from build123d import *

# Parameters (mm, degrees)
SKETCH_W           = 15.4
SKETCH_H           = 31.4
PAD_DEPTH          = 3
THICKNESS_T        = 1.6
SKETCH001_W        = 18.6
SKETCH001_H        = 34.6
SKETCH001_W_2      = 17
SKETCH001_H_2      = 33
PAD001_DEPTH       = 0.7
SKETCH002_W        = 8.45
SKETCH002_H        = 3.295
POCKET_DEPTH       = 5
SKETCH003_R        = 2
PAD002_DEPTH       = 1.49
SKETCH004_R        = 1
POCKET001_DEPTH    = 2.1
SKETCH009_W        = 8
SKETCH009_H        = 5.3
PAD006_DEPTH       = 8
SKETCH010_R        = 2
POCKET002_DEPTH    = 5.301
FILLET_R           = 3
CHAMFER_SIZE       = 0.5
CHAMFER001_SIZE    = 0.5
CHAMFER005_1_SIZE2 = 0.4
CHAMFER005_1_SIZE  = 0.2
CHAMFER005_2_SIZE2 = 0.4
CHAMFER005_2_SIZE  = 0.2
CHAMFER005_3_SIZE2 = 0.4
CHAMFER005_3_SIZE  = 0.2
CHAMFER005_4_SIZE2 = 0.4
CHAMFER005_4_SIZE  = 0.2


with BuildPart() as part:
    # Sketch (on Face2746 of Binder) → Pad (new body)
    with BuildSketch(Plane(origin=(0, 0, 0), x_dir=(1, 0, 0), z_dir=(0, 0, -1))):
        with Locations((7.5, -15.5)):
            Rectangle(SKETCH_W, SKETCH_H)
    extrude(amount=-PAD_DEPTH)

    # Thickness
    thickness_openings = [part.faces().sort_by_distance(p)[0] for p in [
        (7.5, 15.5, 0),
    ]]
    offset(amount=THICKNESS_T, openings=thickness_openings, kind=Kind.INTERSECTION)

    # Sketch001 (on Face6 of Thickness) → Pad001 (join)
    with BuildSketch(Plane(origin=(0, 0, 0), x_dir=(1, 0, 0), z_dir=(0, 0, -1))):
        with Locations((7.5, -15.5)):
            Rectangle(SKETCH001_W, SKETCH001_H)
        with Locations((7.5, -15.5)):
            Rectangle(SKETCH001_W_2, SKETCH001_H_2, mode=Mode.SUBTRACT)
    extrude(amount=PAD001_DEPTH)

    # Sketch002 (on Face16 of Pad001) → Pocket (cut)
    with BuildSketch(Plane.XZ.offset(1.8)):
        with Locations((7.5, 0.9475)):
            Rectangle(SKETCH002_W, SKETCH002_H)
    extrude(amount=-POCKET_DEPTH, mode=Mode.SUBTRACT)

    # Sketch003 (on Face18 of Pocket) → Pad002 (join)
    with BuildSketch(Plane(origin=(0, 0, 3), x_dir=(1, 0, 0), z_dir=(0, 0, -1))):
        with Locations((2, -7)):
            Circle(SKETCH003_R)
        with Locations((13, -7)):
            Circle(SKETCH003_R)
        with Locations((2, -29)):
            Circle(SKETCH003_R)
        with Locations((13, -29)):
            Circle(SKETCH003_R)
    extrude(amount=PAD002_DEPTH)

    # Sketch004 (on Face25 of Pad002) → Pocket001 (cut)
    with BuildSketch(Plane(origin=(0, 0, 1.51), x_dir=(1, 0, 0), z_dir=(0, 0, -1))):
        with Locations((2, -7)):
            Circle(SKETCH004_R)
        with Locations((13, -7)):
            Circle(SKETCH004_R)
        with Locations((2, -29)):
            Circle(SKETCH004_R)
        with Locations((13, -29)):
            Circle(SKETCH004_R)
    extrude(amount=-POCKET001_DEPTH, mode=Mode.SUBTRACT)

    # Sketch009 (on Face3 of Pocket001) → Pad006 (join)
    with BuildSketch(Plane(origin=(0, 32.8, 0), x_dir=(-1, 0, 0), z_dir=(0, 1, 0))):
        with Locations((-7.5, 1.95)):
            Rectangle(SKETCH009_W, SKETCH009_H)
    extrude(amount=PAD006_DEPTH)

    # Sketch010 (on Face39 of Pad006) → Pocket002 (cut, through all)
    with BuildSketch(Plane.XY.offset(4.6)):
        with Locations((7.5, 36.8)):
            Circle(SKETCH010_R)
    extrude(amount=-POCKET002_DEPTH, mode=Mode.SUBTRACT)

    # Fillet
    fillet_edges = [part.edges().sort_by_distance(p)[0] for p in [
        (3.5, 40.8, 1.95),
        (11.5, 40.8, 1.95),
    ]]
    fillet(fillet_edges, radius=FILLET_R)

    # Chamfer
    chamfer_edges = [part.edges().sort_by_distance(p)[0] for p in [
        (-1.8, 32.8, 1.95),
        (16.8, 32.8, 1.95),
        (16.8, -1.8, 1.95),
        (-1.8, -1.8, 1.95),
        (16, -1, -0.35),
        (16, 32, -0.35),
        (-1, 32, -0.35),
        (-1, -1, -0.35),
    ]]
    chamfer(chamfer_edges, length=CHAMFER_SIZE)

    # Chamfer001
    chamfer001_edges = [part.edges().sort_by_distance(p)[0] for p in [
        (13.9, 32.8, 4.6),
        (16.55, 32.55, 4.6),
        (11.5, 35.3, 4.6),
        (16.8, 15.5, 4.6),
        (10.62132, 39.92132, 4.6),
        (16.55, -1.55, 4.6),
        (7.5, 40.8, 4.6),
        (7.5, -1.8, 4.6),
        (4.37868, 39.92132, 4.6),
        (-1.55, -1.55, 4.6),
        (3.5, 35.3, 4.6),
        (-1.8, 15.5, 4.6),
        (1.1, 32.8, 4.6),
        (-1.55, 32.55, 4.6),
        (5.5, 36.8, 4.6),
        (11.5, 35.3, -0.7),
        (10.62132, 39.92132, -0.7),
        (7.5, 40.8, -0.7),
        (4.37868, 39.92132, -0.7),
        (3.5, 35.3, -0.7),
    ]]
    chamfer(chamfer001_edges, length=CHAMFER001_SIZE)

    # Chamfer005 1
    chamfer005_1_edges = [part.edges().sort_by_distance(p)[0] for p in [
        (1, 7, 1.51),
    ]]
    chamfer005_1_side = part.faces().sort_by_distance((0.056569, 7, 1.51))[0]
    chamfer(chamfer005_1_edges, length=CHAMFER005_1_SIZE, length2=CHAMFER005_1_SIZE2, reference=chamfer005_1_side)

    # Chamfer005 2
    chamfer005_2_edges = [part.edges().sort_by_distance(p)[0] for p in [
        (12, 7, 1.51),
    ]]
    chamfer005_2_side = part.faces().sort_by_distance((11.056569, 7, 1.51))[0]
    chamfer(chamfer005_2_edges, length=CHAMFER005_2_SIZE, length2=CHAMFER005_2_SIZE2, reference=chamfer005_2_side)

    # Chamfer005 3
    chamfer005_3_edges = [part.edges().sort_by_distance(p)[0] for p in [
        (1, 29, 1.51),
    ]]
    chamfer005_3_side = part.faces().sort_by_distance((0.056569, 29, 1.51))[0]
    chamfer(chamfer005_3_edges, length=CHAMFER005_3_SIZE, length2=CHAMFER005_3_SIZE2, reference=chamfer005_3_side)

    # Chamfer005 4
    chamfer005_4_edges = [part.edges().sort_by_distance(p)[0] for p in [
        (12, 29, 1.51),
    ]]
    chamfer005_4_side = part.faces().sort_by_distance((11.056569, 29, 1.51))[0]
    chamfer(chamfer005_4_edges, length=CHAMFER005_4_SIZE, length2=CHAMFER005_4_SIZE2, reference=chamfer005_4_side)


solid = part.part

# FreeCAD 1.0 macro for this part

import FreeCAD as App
import Part
import Sketcher
from FreeCAD import Vector


def edges_at(feature, points):
    """Names of the edges that pass closest to the given points."""
    edges = feature.Shape.Edges
    near = lambda p: min(range(len(edges)), key=lambda i: edges[i].distToShape(Part.Vertex(*p))[0])
    return sorted({f"Edge{near(p) + 1}" for p in points})


def faces_at(feature, points):
    """Names of the faces that lie closest to the given points."""
    faces = feature.Shape.Faces
    near = lambda p: min(range(len(faces)), key=lambda i: faces[i].distToShape(Part.Vertex(*p))[0])
    return sorted({f"Face{near(p) + 1}" for p in points})

doc = App.newDocument("Part")
body = doc.addObject("PartDesign::Body", "Body")

sketch1 = body.newObject("Sketcher::SketchObject", "Sketch")
sketch1.AttachmentSupport = (doc.getObject("XY_Plane"), [""])
sketch1.MapMode = "FlatFace"
sketch1.addGeometry([
    Part.LineSegment(Vector(0, 0, 0), Vector(0, 31, 0)),
    Part.LineSegment(Vector(0, 31, 0), Vector(15, 31, 0)),
    Part.LineSegment(Vector(15, 31, 0), Vector(15, 0, 0)),
    Part.LineSegment(Vector(15, 0, 0), Vector(0, 0, 0)),
], False)
sketch1.addConstraint([
    Sketcher.Constraint("Coincident", 0, 2, 1, 1),
    Sketcher.Constraint("Coincident", 1, 2, 2, 1),
    Sketcher.Constraint("Coincident", 2, 2, 3, 1),
    Sketcher.Constraint("Coincident", 3, 2, 0, 1),
    Sketcher.Constraint("Vertical", 0),
    Sketcher.Constraint("Horizontal", 1),
    Sketcher.Constraint("Vertical", 2),
    Sketcher.Constraint("Horizontal", 3),
    Sketcher.Constraint("DistanceX", 1, 1, 1, 2, 15.4),
    Sketcher.Constraint("DistanceY", 0, 1, 0, 2, 31.4),
    Sketcher.Constraint("DistanceX", 0, 2, -1, 1, 0.2),
    Sketcher.Constraint("DistanceY", -1, 1, 0, 2, 31.2),
])
pad1 = body.newObject("PartDesign::Pad", "Pad")
pad1.Profile = sketch1
pad1.Length = 3
doc.recompute()

thickness = body.newObject("PartDesign::Thickness", "Thickness")
thickness.Base = (pad1, faces_at(pad1, [(7.5, 15.5, 0)]))
thickness.Value = 1.6
thickness.Reversed = False
thickness.Join = "Intersection"

sketch2 = body.newObject("Sketcher::SketchObject", "Sketch001")
sketch2.AttachmentSupport = (doc.getObject("XY_Plane"), [""])
sketch2.MapMode = "FlatFace"
sketch2.addGeometry([
    Part.LineSegment(Vector(-2, -2, 0), Vector(-2, 33, 0)),
    Part.LineSegment(Vector(-2, 33, 0), Vector(17, 33, 0)),
    Part.LineSegment(Vector(17, 33, 0), Vector(17, -2, 0)),
    Part.LineSegment(Vector(17, -2, 0), Vector(-2, -2, 0)),
    Part.LineSegment(Vector(16, 32, 0), Vector(-1, 32, 0)),
    Part.LineSegment(Vector(-1, 32, 0), Vector(-1, -1, 0)),
    Part.LineSegment(Vector(-1, -1, 0), Vector(16, -1, 0)),
    Part.LineSegment(Vector(16, -1, 0), Vector(16, 32, 0)),
], False)
sketch2.addConstraint([
    Sketcher.Constraint("Coincident", 0, 2, 1, 1),
    Sketcher.Constraint("Coincident", 1, 2, 2, 1),
    Sketcher.Constraint("Coincident", 2, 2, 3, 1),
    Sketcher.Constraint("Coincident", 3, 2, 0, 1),
    Sketcher.Constraint("Coincident", 4, 2, 5, 1),
    Sketcher.Constraint("Coincident", 5, 2, 6, 1),
    Sketcher.Constraint("Coincident", 6, 2, 7, 1),
    Sketcher.Constraint("Coincident", 7, 2, 4, 1),
    Sketcher.Constraint("Vertical", 0),
    Sketcher.Constraint("Horizontal", 1),
    Sketcher.Constraint("Vertical", 2),
    Sketcher.Constraint("Horizontal", 3),
    Sketcher.Constraint("Horizontal", 4),
    Sketcher.Constraint("Vertical", 5),
    Sketcher.Constraint("Horizontal", 6),
    Sketcher.Constraint("Vertical", 7),
    Sketcher.Constraint("DistanceX", 4, 2, 4, 1, 17.0),
    Sketcher.Constraint("DistanceY", 5, 2, 5, 1, 33.0),
    Sketcher.Constraint("DistanceX", 1, 1, 1, 2, 18.6),
    Sketcher.Constraint("DistanceY", 0, 1, 0, 2, 34.6),
    Sketcher.Constraint("DistanceX", 4, 2, -1, 1, 1.0),
    Sketcher.Constraint("DistanceY", -1, 1, 4, 2, 32.0),
    Sketcher.Constraint("DistanceX", 0, 2, -1, 1, 1.8),
    Sketcher.Constraint("DistanceY", -1, 1, 0, 2, 32.8),
])
pad2 = body.newObject("PartDesign::Pad", "Pad001")
pad2.Profile = sketch2
pad2.Length = 0.7
pad2.Reversed = True

sketch3 = body.newObject("Sketcher::SketchObject", "Sketch002")
sketch3.AttachmentSupport = (doc.getObject("XZ_Plane"), [""])
sketch3.MapMode = "FlatFace"
sketch3.AttachmentOffset = App.Placement(Vector(0, 0, 1.8), App.Rotation())
sketch3.addGeometry([
    Part.LineSegment(Vector(3.3, 2.6, 0), Vector(3.3, -0.7, 0)),
    Part.LineSegment(Vector(3.3, -0.7, 0), Vector(11.7, -0.7, 0)),
    Part.LineSegment(Vector(11.7, -0.7, 0), Vector(11.7, 2.6, 0)),
    Part.LineSegment(Vector(11.7, 2.6, 0), Vector(3.3, 2.6, 0)),
], False)
sketch3.addConstraint([
    Sketcher.Constraint("Coincident", 0, 2, 1, 1),
    Sketcher.Constraint("Coincident", 1, 2, 2, 1),
    Sketcher.Constraint("Coincident", 2, 2, 3, 1),
    Sketcher.Constraint("Coincident", 3, 2, 0, 1),
    Sketcher.Constraint("Vertical", 0),
    Sketcher.Constraint("Horizontal", 1),
    Sketcher.Constraint("Vertical", 2),
    Sketcher.Constraint("Horizontal", 3),
    Sketcher.Constraint("DistanceX", 1, 1, 1, 2, 8.45),
    Sketcher.Constraint("DistanceY", 0, 2, -1, 1, 0.7),
    Sketcher.Constraint("DistanceY", 0, 2, 0, 1, 3.295),
    Sketcher.Constraint("DistanceX", -1, 1, 0, 2, 3.275),
])
pocket1 = body.newObject("PartDesign::Pocket", "Pocket")
pocket1.Profile = sketch3
pocket1.Length = 5

sketch4 = body.newObject("Sketcher::SketchObject", "Sketch003")
sketch4.AttachmentSupport = (doc.getObject("XY_Plane"), [""])
sketch4.MapMode = "FlatFace"
sketch4.AttachmentOffset = App.Placement(Vector(0, 0, 3), App.Rotation())
sketch4.addGeometry([
    Part.Circle(Vector(2, 7, 0), Vector(0, 0, 1), 2),
    Part.Circle(Vector(13, 7, 0), Vector(0, 0, 1), 2),
    Part.Circle(Vector(2, 29, 0), Vector(0, 0, 1), 2),
    Part.Circle(Vector(13, 29, 0), Vector(0, 0, 1), 2),
], False)
sketch4.addConstraint([
    Sketcher.Constraint("Equal", 0, 1),
    Sketcher.Constraint("Equal", 1, 2),
    Sketcher.Constraint("Equal", 2, 3),
    Sketcher.Constraint("Horizontal", 0, 3, 1, 3),
    Sketcher.Constraint("Horizontal", 2, 3, 3, 3),
    Sketcher.Constraint("Vertical", 0, 3, 2, 3),
    Sketcher.Constraint("Vertical", 1, 3, 3, 3),
    Sketcher.Constraint("Diameter", 0, 4.0),
    Sketcher.Constraint("DistanceX", -1, 1, 0, 3, 2.0),
    Sketcher.Constraint("DistanceY", -1, 1, 0, 3, 7.0),
    Sketcher.Constraint("DistanceX", -1, 1, 1, 3, 13.0),
    Sketcher.Constraint("DistanceY", -1, 1, 2, 3, 29.0),
])
pad3 = body.newObject("PartDesign::Pad", "Pad002")
pad3.Profile = sketch4
pad3.Length = 1.49
pad3.Reversed = True

sketch5 = body.newObject("Sketcher::SketchObject", "Sketch004")
sketch5.AttachmentSupport = (doc.getObject("XY_Plane"), [""])
sketch5.MapMode = "FlatFace"
sketch5.AttachmentOffset = App.Placement(Vector(0, 0, 1.51), App.Rotation())
sketch5.addGeometry([
    Part.Circle(Vector(2, 7, 0), Vector(0, 0, 1), 1),
    Part.Circle(Vector(13, 7, 0), Vector(0, 0, 1), 1),
    Part.Circle(Vector(2, 29, 0), Vector(0, 0, 1), 1),
    Part.Circle(Vector(13, 29, 0), Vector(0, 0, 1), 1),
], False)
sketch5.addConstraint([
    Sketcher.Constraint("Equal", 0, 1),
    Sketcher.Constraint("Equal", 1, 2),
    Sketcher.Constraint("Equal", 2, 3),
    Sketcher.Constraint("Horizontal", 0, 3, 1, 3),
    Sketcher.Constraint("Horizontal", 2, 3, 3, 3),
    Sketcher.Constraint("Vertical", 0, 3, 2, 3),
    Sketcher.Constraint("Vertical", 1, 3, 3, 3),
    Sketcher.Constraint("Diameter", 0, 2.0),
    Sketcher.Constraint("DistanceX", -1, 1, 0, 3, 2.0),
    Sketcher.Constraint("DistanceY", -1, 1, 0, 3, 7.0),
    Sketcher.Constraint("DistanceX", -1, 1, 1, 3, 13.0),
    Sketcher.Constraint("DistanceY", -1, 1, 2, 3, 29.0),
])
pocket2 = body.newObject("PartDesign::Pocket", "Pocket001")
pocket2.Profile = sketch5
pocket2.Length = 2.1
pocket2.Reversed = True

sketch6 = body.newObject("Sketcher::SketchObject", "Sketch005")
sketch6.AttachmentSupport = (doc.getObject("XZ_Plane"), [""])
sketch6.MapMode = "FlatFace"
sketch6.AttachmentOffset = App.Placement(Vector(0, 0, -32.8), App.Rotation())
sketch6.addGeometry([
    Part.LineSegment(Vector(12, 5, 0), Vector(12, -1, 0)),
    Part.LineSegment(Vector(12, -1, 0), Vector(4, -1, 0)),
    Part.LineSegment(Vector(4, -1, 0), Vector(4, 5, 0)),
    Part.LineSegment(Vector(4, 5, 0), Vector(12, 5, 0)),
], False)
sketch6.addConstraint([
    Sketcher.Constraint("Coincident", 0, 2, 1, 1),
    Sketcher.Constraint("Coincident", 1, 2, 2, 1),
    Sketcher.Constraint("Coincident", 2, 2, 3, 1),
    Sketcher.Constraint("Coincident", 3, 2, 0, 1),
    Sketcher.Constraint("Vertical", 0),
    Sketcher.Constraint("Horizontal", 1),
    Sketcher.Constraint("Vertical", 2),
    Sketcher.Constraint("Horizontal", 3),
    Sketcher.Constraint("DistanceX", 1, 2, 1, 1, 8.0),
    Sketcher.Constraint("DistanceY", 0, 2, 0, 1, 5.3),
    Sketcher.Constraint("DistanceX", -1, 1, 0, 2, 11.5),
    Sketcher.Constraint("DistanceY", 0, 2, -1, 1, 0.7),
])
pad4 = body.newObject("PartDesign::Pad", "Pad003")
pad4.Profile = sketch6
pad4.Length = 8
pad4.Reversed = True

sketch7 = body.newObject("Sketcher::SketchObject", "Sketch006")
sketch7.AttachmentSupport = (doc.getObject("XY_Plane"), [""])
sketch7.MapMode = "FlatFace"
sketch7.AttachmentOffset = App.Placement(Vector(0, 0, 4.6), App.Rotation())
sketch7.addGeometry(Part.Circle(Vector(7.5, 36.8, 0), Vector(0, 0, 1), 2), False)
sketch7.addConstraint([
    Sketcher.Constraint("Diameter", 0, 4.0),
    Sketcher.Constraint("DistanceX", -1, 1, 0, 3, 7.5),
    Sketcher.Constraint("DistanceY", -1, 1, 0, 3, 36.8),
])
pocket3 = body.newObject("PartDesign::Pocket", "Pocket002")
pocket3.Profile = sketch7
pocket3.Type = "ThroughAll"
doc.recompute()

fillet = body.newObject("PartDesign::Fillet", "Fillet")
fillet.Base = (pocket3, edges_at(pocket3, [(3.5, 40.8, 1.95), (11.5, 40.8, 1.95)]))
fillet.Radius = 3
doc.recompute()

chamfer = body.newObject("PartDesign::Chamfer", "Chamfer")
chamfer.Base = (fillet, edges_at(fillet, [
    (-1.8, 32.8, 1.95),
    (16.8, 32.8, 1.95),
    (16.8, -1.8, 1.95),
    (-1.8, -1.8, 1.95),
    (16, -1, -0.35),
    (16, 32, -0.35),
    (-1, 32, -0.35),
    (-1, -1, -0.35),
]))
chamfer.Size = 0.5
doc.recompute()

chamfer2 = body.newObject("PartDesign::Chamfer", "Chamfer001")
chamfer2.Base = (chamfer, edges_at(chamfer, [
    (13.9, 32.8, 4.6),
    (16.55, 32.55, 4.6),
    (11.5, 35.3, 4.6),
    (16.8, 15.5, 4.6),
    (10.621, 39.921, 4.6),
    (16.55, -1.55, 4.6),
    (7.5, 40.8, 4.6),
    (7.5, -1.8, 4.6),
    (4.379, 39.921, 4.6),
    (-1.55, -1.55, 4.6),
    (3.5, 35.3, 4.6),
    (-1.8, 15.5, 4.6),
    (1.1, 32.8, 4.6),
    (-1.55, 32.55, 4.6),
    (5.5, 36.8, 4.6),
    (11.5, 35.3, -0.7),
    (10.621, 39.921, -0.7),
    (7.5, 40.8, -0.7),
    (4.379, 39.921, -0.7),
    (3.5, 35.3, -0.7),
]))
chamfer2.Size = 0.5
doc.recompute()

chamfer3 = body.newObject("PartDesign::Chamfer", "Chamfer002")
chamfer3.Base = (chamfer2, edges_at(chamfer2, [(1, 7, 1.51)]))
chamfer3.ChamferType = "Two distances"
chamfer3.Size = 0.2
chamfer3.Size2 = 0.4
doc.recompute()

chamfer4 = body.newObject("PartDesign::Chamfer", "Chamfer003")
chamfer4.Base = (chamfer3, edges_at(chamfer3, [(12, 7, 1.51)]))
chamfer4.ChamferType = "Two distances"
chamfer4.Size = 0.2
chamfer4.Size2 = 0.4
doc.recompute()

chamfer5 = body.newObject("PartDesign::Chamfer", "Chamfer004")
chamfer5.Base = (chamfer4, edges_at(chamfer4, [(1, 29, 1.51)]))
chamfer5.ChamferType = "Two distances"
chamfer5.Size = 0.2
chamfer5.Size2 = 0.4
doc.recompute()

chamfer6 = body.newObject("PartDesign::Chamfer", "Chamfer005")
chamfer6.Base = (chamfer5, edges_at(chamfer5, [(12, 29, 1.51)]))
chamfer6.ChamferType = "Two distances"
chamfer6.Size = 0.2
chamfer6.Size2 = 0.4

doc.recompute()
